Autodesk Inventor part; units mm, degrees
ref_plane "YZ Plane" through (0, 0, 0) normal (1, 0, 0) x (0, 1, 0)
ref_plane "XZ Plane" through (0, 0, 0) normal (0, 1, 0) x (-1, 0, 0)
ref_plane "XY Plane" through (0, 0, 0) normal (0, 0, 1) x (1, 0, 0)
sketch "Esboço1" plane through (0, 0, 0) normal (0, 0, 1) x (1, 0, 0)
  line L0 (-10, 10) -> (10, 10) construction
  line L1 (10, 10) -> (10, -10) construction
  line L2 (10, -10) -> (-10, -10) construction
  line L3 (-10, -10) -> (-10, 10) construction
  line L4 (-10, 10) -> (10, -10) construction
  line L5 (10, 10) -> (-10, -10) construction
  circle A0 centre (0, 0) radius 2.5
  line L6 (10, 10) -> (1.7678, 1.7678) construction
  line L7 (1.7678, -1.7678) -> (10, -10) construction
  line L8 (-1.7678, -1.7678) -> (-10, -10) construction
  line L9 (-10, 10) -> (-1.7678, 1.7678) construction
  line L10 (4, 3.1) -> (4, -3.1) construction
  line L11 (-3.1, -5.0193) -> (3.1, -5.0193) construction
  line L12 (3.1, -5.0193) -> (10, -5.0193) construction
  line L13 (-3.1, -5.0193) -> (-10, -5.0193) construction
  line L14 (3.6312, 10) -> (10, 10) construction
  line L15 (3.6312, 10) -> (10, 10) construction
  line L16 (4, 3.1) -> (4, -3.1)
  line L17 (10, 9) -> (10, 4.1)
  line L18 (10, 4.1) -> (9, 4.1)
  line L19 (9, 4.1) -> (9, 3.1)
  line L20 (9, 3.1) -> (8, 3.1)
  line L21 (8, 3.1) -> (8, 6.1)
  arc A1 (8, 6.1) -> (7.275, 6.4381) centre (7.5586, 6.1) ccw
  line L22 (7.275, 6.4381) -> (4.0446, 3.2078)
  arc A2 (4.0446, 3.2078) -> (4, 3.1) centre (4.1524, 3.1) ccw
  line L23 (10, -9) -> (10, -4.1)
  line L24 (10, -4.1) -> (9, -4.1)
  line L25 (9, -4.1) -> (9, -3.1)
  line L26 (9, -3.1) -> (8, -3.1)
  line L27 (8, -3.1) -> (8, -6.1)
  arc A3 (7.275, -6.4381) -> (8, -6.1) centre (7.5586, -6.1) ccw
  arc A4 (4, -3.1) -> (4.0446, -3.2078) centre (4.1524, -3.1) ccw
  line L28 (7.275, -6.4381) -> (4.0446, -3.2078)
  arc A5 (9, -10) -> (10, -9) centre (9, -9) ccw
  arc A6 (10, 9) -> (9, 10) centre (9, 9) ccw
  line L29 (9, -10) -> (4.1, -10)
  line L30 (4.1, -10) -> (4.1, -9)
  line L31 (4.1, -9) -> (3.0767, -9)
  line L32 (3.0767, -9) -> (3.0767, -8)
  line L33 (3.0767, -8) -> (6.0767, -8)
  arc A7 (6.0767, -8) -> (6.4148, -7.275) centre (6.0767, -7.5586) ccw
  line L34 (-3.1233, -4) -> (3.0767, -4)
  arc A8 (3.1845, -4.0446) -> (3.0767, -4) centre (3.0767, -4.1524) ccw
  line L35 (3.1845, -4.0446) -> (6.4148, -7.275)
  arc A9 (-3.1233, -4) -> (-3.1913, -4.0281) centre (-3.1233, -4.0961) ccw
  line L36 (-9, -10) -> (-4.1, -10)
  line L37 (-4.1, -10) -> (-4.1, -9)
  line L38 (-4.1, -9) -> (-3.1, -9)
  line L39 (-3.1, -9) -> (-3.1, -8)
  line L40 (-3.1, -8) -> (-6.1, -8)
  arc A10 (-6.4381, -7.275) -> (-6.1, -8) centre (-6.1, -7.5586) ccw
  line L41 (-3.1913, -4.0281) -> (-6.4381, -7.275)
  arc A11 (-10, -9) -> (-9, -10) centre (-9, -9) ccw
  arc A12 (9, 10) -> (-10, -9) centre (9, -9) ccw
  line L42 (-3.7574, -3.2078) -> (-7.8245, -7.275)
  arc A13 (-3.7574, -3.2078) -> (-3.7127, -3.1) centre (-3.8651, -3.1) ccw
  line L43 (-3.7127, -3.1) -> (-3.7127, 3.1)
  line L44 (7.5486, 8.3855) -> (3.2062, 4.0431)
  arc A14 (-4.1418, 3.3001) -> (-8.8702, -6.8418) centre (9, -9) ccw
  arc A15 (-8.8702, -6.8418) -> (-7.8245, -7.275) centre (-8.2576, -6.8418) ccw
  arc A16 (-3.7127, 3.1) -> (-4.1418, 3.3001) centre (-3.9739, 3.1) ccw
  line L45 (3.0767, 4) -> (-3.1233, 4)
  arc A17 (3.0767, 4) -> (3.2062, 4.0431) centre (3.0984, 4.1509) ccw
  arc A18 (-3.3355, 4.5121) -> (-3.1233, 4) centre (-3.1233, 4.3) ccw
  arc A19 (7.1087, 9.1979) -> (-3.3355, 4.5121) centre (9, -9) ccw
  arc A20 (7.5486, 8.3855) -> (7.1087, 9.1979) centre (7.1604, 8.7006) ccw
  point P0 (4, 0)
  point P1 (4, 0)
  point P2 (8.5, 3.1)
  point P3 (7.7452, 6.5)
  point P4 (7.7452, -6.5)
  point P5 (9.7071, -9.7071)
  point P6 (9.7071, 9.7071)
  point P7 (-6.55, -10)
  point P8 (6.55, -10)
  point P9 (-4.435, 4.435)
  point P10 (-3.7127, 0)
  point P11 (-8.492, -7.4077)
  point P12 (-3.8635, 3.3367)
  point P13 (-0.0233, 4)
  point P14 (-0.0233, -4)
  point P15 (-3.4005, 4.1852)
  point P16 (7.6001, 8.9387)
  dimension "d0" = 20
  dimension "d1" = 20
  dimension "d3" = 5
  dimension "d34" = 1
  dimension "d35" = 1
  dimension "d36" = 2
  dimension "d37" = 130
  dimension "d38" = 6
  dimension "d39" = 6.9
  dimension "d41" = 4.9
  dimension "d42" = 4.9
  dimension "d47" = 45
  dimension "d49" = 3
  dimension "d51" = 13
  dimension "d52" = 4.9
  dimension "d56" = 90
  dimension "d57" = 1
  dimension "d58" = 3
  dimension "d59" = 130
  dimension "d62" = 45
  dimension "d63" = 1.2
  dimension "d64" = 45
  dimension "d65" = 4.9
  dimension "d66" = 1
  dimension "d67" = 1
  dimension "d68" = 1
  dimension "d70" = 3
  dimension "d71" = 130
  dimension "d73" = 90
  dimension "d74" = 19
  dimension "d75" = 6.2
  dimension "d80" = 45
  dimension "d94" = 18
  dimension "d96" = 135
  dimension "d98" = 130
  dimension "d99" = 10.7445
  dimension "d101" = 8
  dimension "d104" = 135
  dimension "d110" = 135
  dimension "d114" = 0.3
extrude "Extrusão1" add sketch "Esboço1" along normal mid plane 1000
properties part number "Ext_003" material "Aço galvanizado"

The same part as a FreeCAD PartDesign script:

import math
import FreeCAD as App
import Part
import Sketcher
Q = App.Units.Quantity

doc = App.newDocument("Part")
params = doc.addObject("Spreadsheet::Sheet", "Params")
for row, (alias, value) in enumerate([
    ("sketch1_diameter", "5 mm"),
    ("sketch1_radius", "1 mm"),
    ("sketch1_radius2", "19 mm"),
    ("sketch1_radius3", "1 mm"),
    ("sketch1_radius4", "1 mm"),
    ("pad1_length", "1000 mm"),
], start=1):
    params.set(f"A{row}", alias)
    params.set(f"B{row}", "=" + value)
    params.setAlias(f"B{row}", alias)

body = doc.addObject("PartDesign::Body", "Body")

# Sketch on XY plane
sketch1 = body.newObject("Sketcher::SketchObject", "Sketch")
sketch1.AttachmentSupport = (doc.getObject("XY_Plane"), [""])
sketch1.MapMode = "FlatFace"
sketch1.addGeometry([
    Part.LineSegment(App.Vector(4, -3.1, 0), App.Vector(4, 3.1, 0)),  # 0
    Part.ArcOfCircle(Part.Circle(App.Vector(4.1524, 3.1, 0), App.Vector(0, 0, 1), 0.152452), math.radians(135), math.radians(180)),  # 1
    Part.LineSegment(App.Vector(4.0446, 3.2078, 0), App.Vector(7.275, 6.4381, 0)),  # 2
    Part.ArcOfCircle(Part.Circle(App.Vector(7.5586, 6.1, 0), App.Vector(0, 0, 1), 0.4414), math.radians(0), math.radians(129.990095)),  # 3
    Part.LineSegment(App.Vector(8, 6.1, 0), App.Vector(8, 3.1, 0)),  # 4
    Part.LineSegment(App.Vector(8, 3.1, 0), App.Vector(9, 3.1, 0)),  # 5
    Part.LineSegment(App.Vector(9, 3.1, 0), App.Vector(9, 4.1, 0)),  # 6
    Part.LineSegment(App.Vector(9, 4.1, 0), App.Vector(10, 4.1, 0)),  # 7
    Part.LineSegment(App.Vector(10, 4.1, 0), App.Vector(10, 9, 0)),  # 8
    Part.ArcOfCircle(Part.Circle(App.Vector(9, 9, 0), App.Vector(0, 0, 1), 1), math.radians(0), math.radians(90)),  # 9
    Part.ArcOfCircle(Part.Circle(App.Vector(9, -9, 0), App.Vector(0, 0, 1), 19), math.radians(90), math.radians(180)),  # 10
    Part.ArcOfCircle(Part.Circle(App.Vector(-9, -9, 0), App.Vector(0, 0, 1), 1), math.radians(180), math.radians(270)),  # 11
    Part.LineSegment(App.Vector(-9, -10, 0), App.Vector(-4.1, -10, 0)),  # 12
    Part.LineSegment(App.Vector(-4.1, -10, 0), App.Vector(-4.1, -9, 0)),  # 13
    Part.LineSegment(App.Vector(-4.1, -9, 0), App.Vector(-3.1, -9, 0)),  # 14
    Part.LineSegment(App.Vector(-3.1, -9, 0), App.Vector(-3.1, -8, 0)),  # 15
    Part.LineSegment(App.Vector(-3.1, -8, 0), App.Vector(-6.1, -8, 0)),  # 16
    Part.ArcOfCircle(Part.Circle(App.Vector(-6.1, -7.5586, 0), App.Vector(0, 0, 1), 0.441294), math.radians(140.009905), math.radians(270)),  # 17
    Part.LineSegment(App.Vector(-6.4381, -7.275, 0), App.Vector(-3.1913, -4.0281, 0)),  # 18
    Part.ArcOfCircle(Part.Circle(App.Vector(-3.1233, -4.0961, 0), App.Vector(0, 0, 1), 0.0961), math.radians(90), math.radians(135)),  # 19
    Part.LineSegment(App.Vector(-3.1233, -4, 0), App.Vector(3.0767, -4, 0)),  # 20
    Part.ArcOfCircle(Part.Circle(App.Vector(3.0767, -4.1524, 0), App.Vector(0, 0, 1), 0.152452), math.radians(45), math.radians(90)),  # 21
    Part.LineSegment(App.Vector(3.1845, -4.0446, 0), App.Vector(6.4148, -7.275, 0)),  # 22
    Part.ArcOfCircle(Part.Circle(App.Vector(6.0767, -7.5586, 0), App.Vector(0, 0, 1), 0.4414), math.radians(-90), math.radians(39.990095)),  # 23
    Part.LineSegment(App.Vector(6.0767, -8, 0), App.Vector(3.0767, -8, 0)),  # 24
    Part.LineSegment(App.Vector(3.0767, -8, 0), App.Vector(3.0767, -9, 0)),  # 25
    Part.LineSegment(App.Vector(3.0767, -9, 0), App.Vector(4.1, -9, 0)),  # 26
    Part.LineSegment(App.Vector(4.1, -9, 0), App.Vector(4.1, -10, 0)),  # 27
    Part.LineSegment(App.Vector(4.1, -10, 0), App.Vector(9, -10, 0)),  # 28
    Part.ArcOfCircle(Part.Circle(App.Vector(9, -9, 0), App.Vector(0, 0, 1), 1), math.radians(-90), math.radians(0)),  # 29
    Part.LineSegment(App.Vector(10, -9, 0), App.Vector(10, -4.1, 0)),  # 30
    Part.LineSegment(App.Vector(10, -4.1, 0), App.Vector(9, -4.1, 0)),  # 31
    Part.LineSegment(App.Vector(9, -4.1, 0), App.Vector(9, -3.1, 0)),  # 32
    Part.LineSegment(App.Vector(9, -3.1, 0), App.Vector(8, -3.1, 0)),  # 33
    Part.LineSegment(App.Vector(8, -3.1, 0), App.Vector(8, -6.1, 0)),  # 34
    Part.ArcOfCircle(Part.Circle(App.Vector(7.5586, -6.1, 0), App.Vector(0, 0, 1), 0.441294), math.radians(-129.990095), math.radians(0)),  # 35
    Part.LineSegment(App.Vector(7.275, -6.4381, 0), App.Vector(4.0446, -3.2078, 0)),  # 36
    Part.ArcOfCircle(Part.Circle(App.Vector(4.1524, -3.1, 0), App.Vector(0, 0, 1), 0.1524), math.radians(180), math.radians(225)),  # 37
    Part.ArcOfCircle(Part.Circle(App.Vector(-3.8651, -3.1, 0), App.Vector(0, 0, 1), 0.152382), math.radians(-45.026587), math.radians(0)),  # 38
    Part.LineSegment(App.Vector(-3.7574, -3.2078, 0), App.Vector(-7.8245, -7.275, 0)),  # 39
    Part.ArcOfCircle(Part.Circle(App.Vector(-8.2576, -6.8418, 0), App.Vector(0, 0, 1), 0.6126), math.radians(180), math.radians(314.993386)),  # 40
    Part.ArcOfCircle(Part.Circle(App.Vector(9, -9, 0), App.Vector(0, 0, 1), 17.999982), math.radians(136.894838), math.radians(173.113689)),  # 41
    Part.ArcOfCircle(Part.Circle(App.Vector(-3.9739, 3.1, 0), App.Vector(0, 0, 1), 0.2612), math.radians(0), math.radians(129.999355)),  # 42
    Part.LineSegment(App.Vector(-3.7127, 3.1, 0), App.Vector(-3.7127, -3.1, 0)),  # 43
    Part.Circle(App.Vector(0, 0, 0), App.Vector(0, 0, 1), 2.5),  # 44
    Part.ArcOfCircle(Part.Circle(App.Vector(7.1604, 8.7006, 0), App.Vector(0, 0, 1), 0.499987), math.radians(-39.066066), math.radians(95.935228)),  # 45
    Part.LineSegment(App.Vector(7.5486, 8.3855, 0), App.Vector(3.2062, 4.0431, 0)),  # 46
    Part.ArcOfCircle(Part.Circle(App.Vector(3.0984, 4.1509, 0), App.Vector(0, 0, 1), 0.152452), math.radians(-98.183252), math.radians(-45)),  # 47
    Part.LineSegment(App.Vector(3.0767, 4, 0), App.Vector(-3.1233, 4, 0)),  # 48
    Part.ArcOfCircle(Part.Circle(App.Vector(-3.1233, 4.3, 0), App.Vector(0, 0, 1), 0.300025), math.radians(135.013504), math.radians(270)),  # 49
    Part.ArcOfCircle(Part.Circle(App.Vector(9, -9, 0), App.Vector(0, 0, 1), 18.295917), math.radians(95.933424), math.radians(132.393657)),  # 50
], False)
sketch1.addConstraint([
    Sketcher.Constraint("Coincident", 0, 2, 1, 2),
    Sketcher.Constraint("Coincident", 1, 1, 2, 1),
    Sketcher.Constraint("Coincident", 2, 2, 3, 2),
    Sketcher.Constraint("Coincident", 3, 1, 4, 1),
    Sketcher.Constraint("Coincident", 4, 2, 5, 1),
    Sketcher.Constraint("Coincident", 5, 2, 6, 1),
    Sketcher.Constraint("Coincident", 6, 2, 7, 1),
    Sketcher.Constraint("Coincident", 7, 2, 8, 1),
    Sketcher.Constraint("Coincident", 8, 2, 9, 1),
    Sketcher.Constraint("Coincident", 9, 2, 10, 1),
    Sketcher.Constraint("Coincident", 10, 2, 11, 1),
    Sketcher.Constraint("Coincident", 11, 2, 12, 1),
    Sketcher.Constraint("Coincident", 12, 2, 13, 1),
    Sketcher.Constraint("Coincident", 13, 2, 14, 1),
    Sketcher.Constraint("Coincident", 14, 2, 15, 1),
    Sketcher.Constraint("Coincident", 15, 2, 16, 1),
    Sketcher.Constraint("Coincident", 16, 2, 17, 2),
    Sketcher.Constraint("Coincident", 17, 1, 18, 1),
    Sketcher.Constraint("Coincident", 18, 2, 19, 2),
    Sketcher.Constraint("Coincident", 19, 1, 20, 1),
    Sketcher.Constraint("Coincident", 20, 2, 21, 2),
    Sketcher.Constraint("Coincident", 21, 1, 22, 1),
    Sketcher.Constraint("Coincident", 22, 2, 23, 2),
    Sketcher.Constraint("Coincident", 23, 1, 24, 1),
    Sketcher.Constraint("Coincident", 24, 2, 25, 1),
    Sketcher.Constraint("Coincident", 25, 2, 26, 1),
    Sketcher.Constraint("Coincident", 26, 2, 27, 1),
    Sketcher.Constraint("Coincident", 27, 2, 28, 1),
    Sketcher.Constraint("Coincident", 28, 2, 29, 1),
    Sketcher.Constraint("Coincident", 29, 2, 30, 1),
    Sketcher.Constraint("Coincident", 30, 2, 31, 1),
    Sketcher.Constraint("Coincident", 31, 2, 32, 1),
    Sketcher.Constraint("Coincident", 32, 2, 33, 1),
    Sketcher.Constraint("Coincident", 33, 2, 34, 1),
    Sketcher.Constraint("Coincident", 34, 2, 35, 2),
    Sketcher.Constraint("Coincident", 35, 1, 36, 1),
    Sketcher.Constraint("Coincident", 36, 2, 37, 2),
    Sketcher.Constraint("Coincident", 37, 1, 0, 1),
    Sketcher.Constraint("Coincident", 38, 1, 39, 1),
    Sketcher.Constraint("Coincident", 39, 2, 40, 2),
    Sketcher.Constraint("Coincident", 40, 1, 41, 2),
    Sketcher.Constraint("Coincident", 41, 1, 42, 2),
    Sketcher.Constraint("Coincident", 42, 1, 43, 1),
    Sketcher.Constraint("Coincident", 43, 2, 38, 2),
    Sketcher.Constraint("Coincident", 45, 1, 46, 1),
    Sketcher.Constraint("Coincident", 46, 2, 47, 2),
    Sketcher.Constraint("Coincident", 47, 1, 48, 1),
    Sketcher.Constraint("Coincident", 48, 2, 49, 2),
    Sketcher.Constraint("Coincident", 49, 1, 50, 2),
    Sketcher.Constraint("Coincident", 50, 1, 45, 2),
    Sketcher.Constraint("Vertical", 0),
    Sketcher.Constraint("Vertical", 4),
    Sketcher.Constraint("Horizontal", 5),
    Sketcher.Constraint("Vertical", 6),
    Sketcher.Constraint("Horizontal", 7),
    Sketcher.Constraint("Vertical", 8),
    Sketcher.Constraint("Horizontal", 12),
    Sketcher.Constraint("Vertical", 13),
    Sketcher.Constraint("Horizontal", 14),
    Sketcher.Constraint("Vertical", 15),
    Sketcher.Constraint("Horizontal", 16),
    Sketcher.Constraint("Horizontal", 20),
    Sketcher.Constraint("Horizontal", 24),
    Sketcher.Constraint("Vertical", 25),
    Sketcher.Constraint("Horizontal", 26),
    Sketcher.Constraint("Vertical", 27),
    Sketcher.Constraint("Horizontal", 28),
    Sketcher.Constraint("Vertical", 30),
    Sketcher.Constraint("Horizontal", 31),
    Sketcher.Constraint("Vertical", 32),
    Sketcher.Constraint("Horizontal", 33),
    Sketcher.Constraint("Vertical", 34),
    Sketcher.Constraint("Vertical", 43),
    Sketcher.Constraint("Horizontal", 48),
    Sketcher.Constraint("Coincident", 44, 3, -1, 1),
    Sketcher.Constraint("Coincident", 29, 3, 10, 3),
    Sketcher.Constraint("Coincident", 41, 3, 10, 3),
    Sketcher.Constraint("Coincident", 50, 3, 10, 3),
    Sketcher.Constraint("Diameter", 44, Q("5 mm")),
    Sketcher.Constraint("Radius", 9, Q("1 mm")),
    Sketcher.Constraint("Radius", 10, Q("19 mm")),
    Sketcher.Constraint("Radius", 11, Q("1 mm")),
    Sketcher.Constraint("Radius", 29, Q("1 mm")),
    Sketcher.Constraint("Radius", 41, Q("18 mm")),
    Sketcher.Constraint("Radius", 45, Q("0.5 mm")),
    Sketcher.Constraint("Radius", 49, Q("0.3 mm")),
    Sketcher.Constraint("DistanceX", 5, 1, 5, 2, Q("1 mm")),
    Sketcher.Constraint("DistanceX", 7, 1, 7, 2, Q("1 mm")),
    Sketcher.Constraint("DistanceX", 14, 1, 14, 2, Q("1 mm")),
    Sketcher.Constraint("DistanceX", 16, 2, 16, 1, Q("3 mm")),
    Sketcher.Constraint("DistanceX", 24, 2, 24, 1, Q("3 mm")),
    Sketcher.Constraint("DistanceX", 31, 2, 31, 1, Q("1 mm")),
    Sketcher.Constraint("DistanceX", 33, 2, 33, 1, Q("1 mm")),
    Sketcher.Constraint("DistanceY", 4, 2, 4, 1, Q("3 mm")),
    Sketcher.Constraint("DistanceY", 6, 1, 6, 2, Q("1 mm")),
    Sketcher.Constraint("DistanceY", 13, 1, 13, 2, Q("1 mm")),
    Sketcher.Constraint("DistanceY", 15, 1, 15, 2, Q("1 mm")),
    Sketcher.Constraint("DistanceY", 25, 2, 25, 1, Q("1 mm")),
    Sketcher.Constraint("DistanceY", 27, 2, 27, 1, Q("1 mm")),
    Sketcher.Constraint("DistanceY", 32, 1, 32, 2, Q("1 mm")),
    Sketcher.Constraint("DistanceY", 34, 2, 34, 1, Q("3 mm")),
    Sketcher.Constraint("DistanceX", 12, 1, 12, 2, Q("4.9 mm")),
    Sketcher.Constraint("DistanceX", 20, 1, 20, 2, Q("6.2 mm")),
    Sketcher.Constraint("DistanceX", 28, 1, 28, 2, Q("4.9 mm")),
    Sketcher.Constraint("DistanceX", 48, 2, 48, 1, Q("6.2 mm")),
    Sketcher.Constraint("DistanceY", 0, 1, 0, 2, Q("6.2 mm")),
    Sketcher.Constraint("DistanceY", 8, 1, 8, 2, Q("4.9 mm")),
    Sketcher.Constraint("DistanceY", 30, 1, 30, 2, Q("4.9 mm")),
    Sketcher.Constraint("DistanceY", 43, 2, 43, 1, Q("6.2 mm")),
    Sketcher.Constraint("DistanceX", -1, 1, 3, 1, Q("8 mm")),
    Sketcher.Constraint("DistanceY", 15, 2, -1, 1, Q("8 mm")),
    Sketcher.Constraint("DistanceY", 23, 1, -1, 1, Q("8 mm")),
    Sketcher.Constraint("DistanceX", -1, 1, 33, 2, Q("8 mm")),
    Sketcher.Constraint("DistanceX", -1, 1, 0, 2, Q("4 mm")),
    Sketcher.Constraint("DistanceY", -1, 1, 8, 2, Q("9 mm")),
    Sketcher.Constraint("DistanceX", -1, 1, 9, 2, Q("9 mm")),
    Sketcher.Constraint("DistanceY", 10, 2, -1, 1, Q("9 mm")),
    Sketcher.Constraint("DistanceX", 11, 2, -1, 1, Q("9 mm")),
    Sketcher.Constraint("DistanceY", 19, 1, -1, 1, Q("4 mm")),
    Sketcher.Constraint("DistanceX", -1, 1, 28, 2, Q("9 mm")),
    Sketcher.Constraint("DistanceY", 29, 2, -1, 1, Q("9 mm")),
    Sketcher.Constraint("DistanceY", -1, 1, 47, 1, Q("4 mm")),
    Sketcher.Constraint("Radius", 19, Q("0.096 mm")),
    Sketcher.Constraint("Radius", 50, Q("18.296 mm")),
    Sketcher.Constraint("DistanceY", -1, 1, 1, 3, Q("3.1 mm")),
    Sketcher.Constraint("DistanceY", -1, 1, 3, 3, Q("6.1 mm")),
    Sketcher.Constraint("DistanceX", 17, 3, -1, 1, Q("6.1 mm")),
    Sketcher.Constraint("DistanceY", 35, 3, -1, 1, Q("6.1 mm")),
    Sketcher.Constraint("DistanceY", 37, 3, -1, 1, Q("3.1 mm")),
    Sketcher.Constraint("DistanceY", 38, 3, -1, 1, Q("3.1 mm")),
    Sketcher.Constraint("DistanceY", -1, 1, 42, 3, Q("3.1 mm")),
    Sketcher.Constraint("DistanceY", -1, 1, 0, 2, Q("3.1 mm")),
    Sketcher.Constraint("DistanceY", -1, 1, 41, 1, Q("3.3 mm")),
    Sketcher.Constraint("DistanceY", -1, 1, 42, 1, Q("3.1 mm")),
    Sketcher.Constraint("Radius", 1, Q("0.1525 mm")),
    Sketcher.Constraint("Radius", 3, Q("0.4414 mm")),
    Sketcher.Constraint("Radius", 17, Q("0.4413 mm")),
    Sketcher.Constraint("Radius", 21, Q("0.1525 mm")),
    Sketcher.Constraint("Radius", 23, Q("0.4414 mm")),
    Sketcher.Constraint("Radius", 35, Q("0.4413 mm")),
    Sketcher.Constraint("Radius", 37, Q("0.1524 mm")),
    Sketcher.Constraint("Radius", 38, Q("0.1524 mm")),
    Sketcher.Constraint("Radius", 40, Q("0.6126 mm")),
    Sketcher.Constraint("Radius", 42, Q("0.2612 mm")),
    Sketcher.Constraint("Radius", 47, Q("0.1525 mm")),
    Sketcher.Constraint("Distance", 46, Q("6.141 mm")),
    Sketcher.Constraint("DistanceX", 26, 1, 26, 2, Q("1.0233 mm")),
    Sketcher.Constraint("DistanceY", -1, 1, 47, 3, Q("4.151 mm")),
    Sketcher.Constraint("DistanceX", -1, 1, 2, 2, Q("7.275 mm")),
    Sketcher.Constraint("DistanceX", 17, 1, -1, 1, Q("6.438 mm")),
    Sketcher.Constraint("DistanceY", 18, 2, -1, 1, Q("4.028 mm")),
    Sketcher.Constraint("DistanceY", 22, 2, -1, 1, Q("7.275 mm")),
    Sketcher.Constraint("DistanceX", -1, 1, 35, 1, Q("7.275 mm")),
    Sketcher.Constraint("DistanceY", 39, 2, -1, 1, Q("7.275 mm")),
    Sketcher.Constraint("DistanceY", -1, 1, 46, 2, Q("4.043 mm")),
    Sketcher.Constraint("DistanceY", -1, 1, 49, 1, Q("4.512 mm")),
    Sketcher.Constraint("DistanceY", -1, 1, 50, 1, Q("9.198 mm")),
    Sketcher.Constraint("Distance", 2, Q("4.5684 mm")),
    Sketcher.Constraint("Distance", 18, Q("4.5917 mm")),
    Sketcher.Constraint("Distance", 22, Q("4.5684 mm")),
    Sketcher.Constraint("Distance", 36, Q("4.5684 mm")),
    Sketcher.Constraint("Distance", 39, Q("5.7518 mm")),
    Sketcher.Constraint("DistanceX", -1, 1, 21, 3, Q("3.0767 mm")),
    Sketcher.Constraint("DistanceX", -1, 1, 23, 3, Q("6.0767 mm")),
    Sketcher.Constraint("DistanceX", 40, 3, -1, 1, Q("8.2576 mm")),
    Sketcher.Constraint("DistanceY", 40, 3, -1, 1, Q("6.8418 mm")),
    Sketcher.Constraint("DistanceX", -1, 1, 45, 3, Q("7.1604 mm")),
    Sketcher.Constraint("DistanceX", -1, 1, 47, 3, Q("3.0984 mm")),
    Sketcher.Constraint("DistanceX", 19, 1, -1, 1, Q("3.1233 mm")),
])
sketch1.setExpression("Constraints[78]", "Params.sketch1_diameter")
sketch1.setExpression("Constraints[79]", "Params.sketch1_radius")
sketch1.setExpression("Constraints[80]", "Params.sketch1_radius2")
sketch1.setExpression("Constraints[81]", "Params.sketch1_radius3")
sketch1.setExpression("Constraints[82]", "Params.sketch1_radius4")
pad1 = body.newObject("PartDesign::Pad", "Pad")
pad1.Profile = sketch1
pad1.setExpression("Length", "Params.pad1_length")
pad1.Midplane = True

doc.recompute()
